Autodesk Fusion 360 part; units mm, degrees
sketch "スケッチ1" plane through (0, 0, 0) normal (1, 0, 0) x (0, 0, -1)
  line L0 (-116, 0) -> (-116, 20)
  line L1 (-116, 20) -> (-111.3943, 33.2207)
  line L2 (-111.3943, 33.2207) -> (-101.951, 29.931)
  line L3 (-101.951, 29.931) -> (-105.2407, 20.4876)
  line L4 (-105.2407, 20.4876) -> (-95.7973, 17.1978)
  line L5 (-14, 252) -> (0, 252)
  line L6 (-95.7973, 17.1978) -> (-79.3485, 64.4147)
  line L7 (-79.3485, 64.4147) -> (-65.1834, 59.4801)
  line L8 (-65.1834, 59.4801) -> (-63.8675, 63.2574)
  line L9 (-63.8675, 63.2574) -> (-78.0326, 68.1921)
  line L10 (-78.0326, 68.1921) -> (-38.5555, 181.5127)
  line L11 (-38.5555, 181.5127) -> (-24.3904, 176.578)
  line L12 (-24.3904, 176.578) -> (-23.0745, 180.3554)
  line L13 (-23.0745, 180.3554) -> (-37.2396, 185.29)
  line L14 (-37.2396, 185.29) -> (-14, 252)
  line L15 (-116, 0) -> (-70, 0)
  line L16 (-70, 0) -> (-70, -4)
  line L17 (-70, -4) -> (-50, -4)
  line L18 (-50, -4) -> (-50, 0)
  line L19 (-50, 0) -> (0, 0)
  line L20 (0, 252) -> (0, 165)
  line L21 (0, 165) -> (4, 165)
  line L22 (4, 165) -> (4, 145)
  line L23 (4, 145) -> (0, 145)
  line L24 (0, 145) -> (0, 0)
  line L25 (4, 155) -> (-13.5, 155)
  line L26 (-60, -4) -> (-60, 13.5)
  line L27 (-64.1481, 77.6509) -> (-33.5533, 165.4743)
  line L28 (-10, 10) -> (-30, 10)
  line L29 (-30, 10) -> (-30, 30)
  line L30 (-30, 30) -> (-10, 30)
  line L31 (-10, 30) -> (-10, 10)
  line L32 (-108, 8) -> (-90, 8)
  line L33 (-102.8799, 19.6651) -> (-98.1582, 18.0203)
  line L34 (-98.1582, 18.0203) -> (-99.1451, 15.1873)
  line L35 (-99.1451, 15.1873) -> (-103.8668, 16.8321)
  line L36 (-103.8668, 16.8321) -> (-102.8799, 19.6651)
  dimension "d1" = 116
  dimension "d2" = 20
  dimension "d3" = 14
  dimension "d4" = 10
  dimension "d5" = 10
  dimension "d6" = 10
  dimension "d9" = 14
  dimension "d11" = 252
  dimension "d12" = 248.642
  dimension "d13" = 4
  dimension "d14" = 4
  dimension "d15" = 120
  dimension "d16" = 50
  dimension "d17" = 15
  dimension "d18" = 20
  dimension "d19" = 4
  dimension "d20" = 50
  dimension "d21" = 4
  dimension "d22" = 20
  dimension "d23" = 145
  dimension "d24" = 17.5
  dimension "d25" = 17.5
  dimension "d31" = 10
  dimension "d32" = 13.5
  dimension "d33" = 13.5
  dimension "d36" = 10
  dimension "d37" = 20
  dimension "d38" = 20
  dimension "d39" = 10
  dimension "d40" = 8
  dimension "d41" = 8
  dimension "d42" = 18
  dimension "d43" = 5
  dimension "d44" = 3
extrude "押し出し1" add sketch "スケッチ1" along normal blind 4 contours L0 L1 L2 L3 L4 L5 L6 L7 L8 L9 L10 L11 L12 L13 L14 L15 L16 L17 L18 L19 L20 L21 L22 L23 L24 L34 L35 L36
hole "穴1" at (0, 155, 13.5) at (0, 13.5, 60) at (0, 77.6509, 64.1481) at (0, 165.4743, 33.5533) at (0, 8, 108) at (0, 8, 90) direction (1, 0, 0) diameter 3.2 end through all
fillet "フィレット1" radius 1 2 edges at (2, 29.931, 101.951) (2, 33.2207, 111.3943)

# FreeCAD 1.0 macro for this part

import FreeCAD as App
import Part
import Sketcher

V = App.Vector


def edges_at(feature, points):
    """Names of the edges that pass closest to the given points."""
    edges = feature.Shape.Edges
    near = lambda p: min(range(len(edges)), key=lambda i: edges[i].distToShape(Part.Vertex(*p))[0])
    return sorted({f"Edge{near(p) + 1}" for p in points})


def add_polygon(sketch, points):
    """Adds a closed chain of lines whose ends are joined by coincident constraints."""
    first, n = sketch.GeometryCount, len(points)
    for a, b in zip(points, points[1:] + points[:1]):
        sketch.addGeometry(Part.LineSegment(App.Vector(*a, 0), App.Vector(*b, 0)), False)
    for i in range(n):
        sketch.addConstraint(Sketcher.Constraint("Coincident", first + i, 2, first + (i + 1) % n, 1))

doc = App.newDocument("Part")
body = doc.addObject("PartDesign::Body", "Body")

# Sketch on YZ plane
sketch1 = doc.addObject("Sketcher::SketchObject", "Sketch")
body.addObject(sketch1)
sketch1.AttachmentSupport = (doc.YZ_Plane, [""])
sketch1.MapMode = "FlatFace"
add_polygon(sketch1, [(20, 116), (0, 116), (0, 70), (-4, 70), (-4, 50), (0, 50), (0, 0), (145, 0), (145, -4), (165, -4), (165, 0), (252, 0), (252, 14), (185.29, 37.2396), (180.3554, 23.0745), (176.578, 24.3904), (181.5127, 38.5555), (68.1921, 78.0326), (63.2574, 63.8675), (59.4801, 65.1834), (64.4147, 79.3485), (17.1978, 95.7973), (18.0203, 98.1582), (15.1873, 99.1451), (16.8321, 103.8668), (19.66516, 102.879879), (20.4876, 105.2407), (29.931, 101.951), (33.2207, 111.3943)])  # lines 0-28
add_polygon(sketch1, [(30, 10), (10, 10), (10, 30), (30, 30)])  # lines 29-32
sketch1.addConstraint(Sketcher.Constraint("Horizontal", 0))
sketch1.addConstraint(Sketcher.Constraint("Vertical", 1))
sketch1.addConstraint(Sketcher.Constraint("Horizontal", 2))
sketch1.addConstraint(Sketcher.Constraint("Vertical", 3))
sketch1.addConstraint(Sketcher.Constraint("Horizontal", 4))
sketch1.addConstraint(Sketcher.Constraint("Vertical", 5))
sketch1.addConstraint(Sketcher.Constraint("Horizontal", 6))
sketch1.addConstraint(Sketcher.Constraint("Vertical", 7))
sketch1.addConstraint(Sketcher.Constraint("Horizontal", 8))
sketch1.addConstraint(Sketcher.Constraint("Vertical", 9))
sketch1.addConstraint(Sketcher.Constraint("Horizontal", 10))
sketch1.addConstraint(Sketcher.Constraint("Vertical", 11))
sketch1.addConstraint(Sketcher.Constraint("Horizontal", 29))
sketch1.addConstraint(Sketcher.Constraint("Vertical", 30))
sketch1.addConstraint(Sketcher.Constraint("Horizontal", 31))
sketch1.addConstraint(Sketcher.Constraint("Vertical", 32))
sketch1.addConstraint(Sketcher.Constraint("Coincident", 5, 2, -1, 1))
sketch1.addConstraint(Sketcher.Constraint("PointOnObject", 0, 2, -2))
sketch1.addConstraint(Sketcher.Constraint("PointOnObject", 9, 2, -1))
sketch1.addConstraint(Sketcher.Constraint("Perpendicular", 12, 13))
sketch1.addConstraint(Sketcher.Constraint("Perpendicular", 13, 14))
sketch1.addConstraint(Sketcher.Constraint("Perpendicular", 14, 15))
sketch1.addConstraint(Sketcher.Constraint("Perpendicular", 15, 16))
sketch1.addConstraint(Sketcher.Constraint("Perpendicular", 16, 17))
sketch1.addConstraint(Sketcher.Constraint("Perpendicular", 17, 18))
sketch1.addConstraint(Sketcher.Constraint("Perpendicular", 18, 19))
sketch1.addConstraint(Sketcher.Constraint("Perpendicular", 19, 20))
sketch1.addConstraint(Sketcher.Constraint("Perpendicular", 20, 21))
sketch1.addConstraint(Sketcher.Constraint("Perpendicular", 21, 22))
sketch1.addConstraint(Sketcher.Constraint("Perpendicular", 22, 23))
sketch1.addConstraint(Sketcher.Constraint("Perpendicular", 23, 24))
sketch1.addConstraint(Sketcher.Constraint("Perpendicular", 24, 25))
sketch1.addConstraint(Sketcher.Constraint("Perpendicular", 25, 26))
sketch1.addConstraint(Sketcher.Constraint("Perpendicular", 26, 27))
sketch1.addConstraint(Sketcher.Constraint("Perpendicular", 27, 28))
sketch1.addConstraint(Sketcher.Constraint("Equal", 0, 8))
sketch1.addConstraint(Sketcher.Constraint("Equal", 8, 29))
sketch1.addConstraint(Sketcher.Constraint("Equal", 31, 3))
sketch1.addConstraint(Sketcher.Constraint("Equal", 4, 7))
sketch1.addConstraint(Sketcher.Constraint("Equal", 3, 30))
sketch1.addConstraint(Sketcher.Constraint("Equal", 13, 15))
sketch1.addConstraint(Sketcher.Constraint("Equal", 15, 17))
sketch1.addConstraint(Sketcher.Constraint("Equal", 14, 18))
sketch1.addConstraint(Sketcher.Constraint("Equal", 17, 19))
sketch1.addConstraint(Sketcher.Constraint("Equal", 22, 24))
sketch1.addConstraint(Sketcher.Constraint("Equal", 21, 25))
sketch1.addConstraint(Sketcher.Constraint("Equal", 26, 27))
sketch1.addConstraint(Sketcher.Constraint("DistanceX", 0, 2, 0, 1, 20.0))
sketch1.addConstraint(Sketcher.Constraint("DistanceX", 2, 2, 2, 1, 4.0))
sketch1.addConstraint(Sketcher.Constraint("DistanceX", 6, 1, 6, 2, 145.0))
sketch1.addConstraint(Sketcher.Constraint("DistanceY", 5, 2, 5, 1, 50.0))
sketch1.addConstraint(Sketcher.Constraint("DistanceY", 11, 1, 11, 2, 14.0))
sketch1.addConstraint(Sketcher.Constraint("Distance", 13, 15.0))
sketch1.addConstraint(Sketcher.Constraint("Distance", 14, 4.0))
sketch1.addConstraint(Sketcher.Constraint("Distance", 16, 120.0))
sketch1.addConstraint(Sketcher.Constraint("Distance", 20, 50.0))
sketch1.addConstraint(Sketcher.Constraint("Distance", 22, 3.0))
sketch1.addConstraint(Sketcher.Constraint("Distance", 23, 5.0))
sketch1.addConstraint(Sketcher.Constraint("Distance", 26, 10.0))
sketch1.addConstraint(Sketcher.Constraint("Distance", 28, 14.0))
sketch1.addConstraint(Sketcher.Constraint("DistanceY", -1, 1, 0, 2, 116.0))
sketch1.addConstraint(Sketcher.Constraint("DistanceX", -1, 1, 10, 2, 252.0))
sketch1.addConstraint(Sketcher.Constraint("DistanceX", -1, 1, 29, 2, 10.0))
sketch1.addConstraint(Sketcher.Constraint("DistanceY", -1, 1, 29, 2, 10.0))
sketch1.addConstraint(Sketcher.Constraint("Distance", 21, 2.5))
pad1 = doc.addObject("PartDesign::Pad", "Pad")
body.addObject(pad1)
pad1.Profile = sketch1
pad1.Length = 4

# Sketch on YZ plane
sketch2 = doc.addObject("Sketcher::SketchObject", "Sketch001")
body.addObject(sketch2)
sketch2.AttachmentSupport = (doc.YZ_Plane, [""])
sketch2.MapMode = "FlatFace"
sketch2.addGeometry(Part.Circle(V(155, 13.5, 0), V(0, 0, 1), 1.6), False)
sketch2.addGeometry(Part.Circle(V(13.5, 60, 0), V(0, 0, 1), 1.6), False)
sketch2.addGeometry(Part.Circle(V(77.6509, 64.1481, 0), V(0, 0, 1), 1.6), False)
sketch2.addGeometry(Part.Circle(V(165.4743, 33.5533, 0), V(0, 0, 1), 1.6), False)
sketch2.addGeometry(Part.Circle(V(8, 108, 0), V(0, 0, 1), 1.6), False)
sketch2.addGeometry(Part.Circle(V(8, 90, 0), V(0, 0, 1), 1.6), False)
sketch2.addConstraint(Sketcher.Constraint("Equal", 0, 1))
sketch2.addConstraint(Sketcher.Constraint("Equal", 1, 2))
sketch2.addConstraint(Sketcher.Constraint("Equal", 2, 3))
sketch2.addConstraint(Sketcher.Constraint("Equal", 3, 4))
sketch2.addConstraint(Sketcher.Constraint("Equal", 4, 5))
sketch2.addConstraint(Sketcher.Constraint("Vertical", 4, 3, 5, 3))
sketch2.addConstraint(Sketcher.Constraint("Diameter", 0, 3.2))
sketch2.addConstraint(Sketcher.Constraint("DistanceX", -1, 1, 0, 3, 155.0))
sketch2.addConstraint(Sketcher.Constraint("DistanceY", -1, 1, 1, 3, 60.0))
sketch2.addConstraint(Sketcher.Constraint("DistanceX", -1, 1, 4, 3, 8.0))
sketch2.addConstraint(Sketcher.Constraint("DistanceY", -1, 1, 4, 3, 108.0))
sketch2.addConstraint(Sketcher.Constraint("DistanceY", -1, 1, 5, 3, 90.0))
sketch2.addConstraint(Sketcher.Constraint("DistanceY", -1, 1, 0, 3, 13.5))
sketch2.addConstraint(Sketcher.Constraint("DistanceX", -1, 1, 1, 3, 13.5))
sketch2.addConstraint(Sketcher.Constraint("DistanceX", -1, 1, 2, 3, 77.651))
sketch2.addConstraint(Sketcher.Constraint("DistanceY", -1, 1, 2, 3, 64.148))
sketch2.addConstraint(Sketcher.Constraint("DistanceX", -1, 1, 3, 3, 165.4743))
sketch2.addConstraint(Sketcher.Constraint("DistanceY", -1, 1, 3, 3, 33.5533))
doc.recompute()
hole = doc.addObject("PartDesign::Hole", "Hole")
body.addObject(hole)
hole.Profile = sketch2
hole.ThreadType = "None"
hole.Diameter = 3.2
hole.DepthType = "ThroughAll"
hole.Reversed = True
doc.recompute()

fillet = doc.addObject("PartDesign::Fillet", "Fillet")
body.addObject(fillet)
fillet.Base = (hole, edges_at(hole, [(2, 29.931, 101.951), (2, 33.221, 111.394)]))
fillet.Radius = 1

doc.recompute()
